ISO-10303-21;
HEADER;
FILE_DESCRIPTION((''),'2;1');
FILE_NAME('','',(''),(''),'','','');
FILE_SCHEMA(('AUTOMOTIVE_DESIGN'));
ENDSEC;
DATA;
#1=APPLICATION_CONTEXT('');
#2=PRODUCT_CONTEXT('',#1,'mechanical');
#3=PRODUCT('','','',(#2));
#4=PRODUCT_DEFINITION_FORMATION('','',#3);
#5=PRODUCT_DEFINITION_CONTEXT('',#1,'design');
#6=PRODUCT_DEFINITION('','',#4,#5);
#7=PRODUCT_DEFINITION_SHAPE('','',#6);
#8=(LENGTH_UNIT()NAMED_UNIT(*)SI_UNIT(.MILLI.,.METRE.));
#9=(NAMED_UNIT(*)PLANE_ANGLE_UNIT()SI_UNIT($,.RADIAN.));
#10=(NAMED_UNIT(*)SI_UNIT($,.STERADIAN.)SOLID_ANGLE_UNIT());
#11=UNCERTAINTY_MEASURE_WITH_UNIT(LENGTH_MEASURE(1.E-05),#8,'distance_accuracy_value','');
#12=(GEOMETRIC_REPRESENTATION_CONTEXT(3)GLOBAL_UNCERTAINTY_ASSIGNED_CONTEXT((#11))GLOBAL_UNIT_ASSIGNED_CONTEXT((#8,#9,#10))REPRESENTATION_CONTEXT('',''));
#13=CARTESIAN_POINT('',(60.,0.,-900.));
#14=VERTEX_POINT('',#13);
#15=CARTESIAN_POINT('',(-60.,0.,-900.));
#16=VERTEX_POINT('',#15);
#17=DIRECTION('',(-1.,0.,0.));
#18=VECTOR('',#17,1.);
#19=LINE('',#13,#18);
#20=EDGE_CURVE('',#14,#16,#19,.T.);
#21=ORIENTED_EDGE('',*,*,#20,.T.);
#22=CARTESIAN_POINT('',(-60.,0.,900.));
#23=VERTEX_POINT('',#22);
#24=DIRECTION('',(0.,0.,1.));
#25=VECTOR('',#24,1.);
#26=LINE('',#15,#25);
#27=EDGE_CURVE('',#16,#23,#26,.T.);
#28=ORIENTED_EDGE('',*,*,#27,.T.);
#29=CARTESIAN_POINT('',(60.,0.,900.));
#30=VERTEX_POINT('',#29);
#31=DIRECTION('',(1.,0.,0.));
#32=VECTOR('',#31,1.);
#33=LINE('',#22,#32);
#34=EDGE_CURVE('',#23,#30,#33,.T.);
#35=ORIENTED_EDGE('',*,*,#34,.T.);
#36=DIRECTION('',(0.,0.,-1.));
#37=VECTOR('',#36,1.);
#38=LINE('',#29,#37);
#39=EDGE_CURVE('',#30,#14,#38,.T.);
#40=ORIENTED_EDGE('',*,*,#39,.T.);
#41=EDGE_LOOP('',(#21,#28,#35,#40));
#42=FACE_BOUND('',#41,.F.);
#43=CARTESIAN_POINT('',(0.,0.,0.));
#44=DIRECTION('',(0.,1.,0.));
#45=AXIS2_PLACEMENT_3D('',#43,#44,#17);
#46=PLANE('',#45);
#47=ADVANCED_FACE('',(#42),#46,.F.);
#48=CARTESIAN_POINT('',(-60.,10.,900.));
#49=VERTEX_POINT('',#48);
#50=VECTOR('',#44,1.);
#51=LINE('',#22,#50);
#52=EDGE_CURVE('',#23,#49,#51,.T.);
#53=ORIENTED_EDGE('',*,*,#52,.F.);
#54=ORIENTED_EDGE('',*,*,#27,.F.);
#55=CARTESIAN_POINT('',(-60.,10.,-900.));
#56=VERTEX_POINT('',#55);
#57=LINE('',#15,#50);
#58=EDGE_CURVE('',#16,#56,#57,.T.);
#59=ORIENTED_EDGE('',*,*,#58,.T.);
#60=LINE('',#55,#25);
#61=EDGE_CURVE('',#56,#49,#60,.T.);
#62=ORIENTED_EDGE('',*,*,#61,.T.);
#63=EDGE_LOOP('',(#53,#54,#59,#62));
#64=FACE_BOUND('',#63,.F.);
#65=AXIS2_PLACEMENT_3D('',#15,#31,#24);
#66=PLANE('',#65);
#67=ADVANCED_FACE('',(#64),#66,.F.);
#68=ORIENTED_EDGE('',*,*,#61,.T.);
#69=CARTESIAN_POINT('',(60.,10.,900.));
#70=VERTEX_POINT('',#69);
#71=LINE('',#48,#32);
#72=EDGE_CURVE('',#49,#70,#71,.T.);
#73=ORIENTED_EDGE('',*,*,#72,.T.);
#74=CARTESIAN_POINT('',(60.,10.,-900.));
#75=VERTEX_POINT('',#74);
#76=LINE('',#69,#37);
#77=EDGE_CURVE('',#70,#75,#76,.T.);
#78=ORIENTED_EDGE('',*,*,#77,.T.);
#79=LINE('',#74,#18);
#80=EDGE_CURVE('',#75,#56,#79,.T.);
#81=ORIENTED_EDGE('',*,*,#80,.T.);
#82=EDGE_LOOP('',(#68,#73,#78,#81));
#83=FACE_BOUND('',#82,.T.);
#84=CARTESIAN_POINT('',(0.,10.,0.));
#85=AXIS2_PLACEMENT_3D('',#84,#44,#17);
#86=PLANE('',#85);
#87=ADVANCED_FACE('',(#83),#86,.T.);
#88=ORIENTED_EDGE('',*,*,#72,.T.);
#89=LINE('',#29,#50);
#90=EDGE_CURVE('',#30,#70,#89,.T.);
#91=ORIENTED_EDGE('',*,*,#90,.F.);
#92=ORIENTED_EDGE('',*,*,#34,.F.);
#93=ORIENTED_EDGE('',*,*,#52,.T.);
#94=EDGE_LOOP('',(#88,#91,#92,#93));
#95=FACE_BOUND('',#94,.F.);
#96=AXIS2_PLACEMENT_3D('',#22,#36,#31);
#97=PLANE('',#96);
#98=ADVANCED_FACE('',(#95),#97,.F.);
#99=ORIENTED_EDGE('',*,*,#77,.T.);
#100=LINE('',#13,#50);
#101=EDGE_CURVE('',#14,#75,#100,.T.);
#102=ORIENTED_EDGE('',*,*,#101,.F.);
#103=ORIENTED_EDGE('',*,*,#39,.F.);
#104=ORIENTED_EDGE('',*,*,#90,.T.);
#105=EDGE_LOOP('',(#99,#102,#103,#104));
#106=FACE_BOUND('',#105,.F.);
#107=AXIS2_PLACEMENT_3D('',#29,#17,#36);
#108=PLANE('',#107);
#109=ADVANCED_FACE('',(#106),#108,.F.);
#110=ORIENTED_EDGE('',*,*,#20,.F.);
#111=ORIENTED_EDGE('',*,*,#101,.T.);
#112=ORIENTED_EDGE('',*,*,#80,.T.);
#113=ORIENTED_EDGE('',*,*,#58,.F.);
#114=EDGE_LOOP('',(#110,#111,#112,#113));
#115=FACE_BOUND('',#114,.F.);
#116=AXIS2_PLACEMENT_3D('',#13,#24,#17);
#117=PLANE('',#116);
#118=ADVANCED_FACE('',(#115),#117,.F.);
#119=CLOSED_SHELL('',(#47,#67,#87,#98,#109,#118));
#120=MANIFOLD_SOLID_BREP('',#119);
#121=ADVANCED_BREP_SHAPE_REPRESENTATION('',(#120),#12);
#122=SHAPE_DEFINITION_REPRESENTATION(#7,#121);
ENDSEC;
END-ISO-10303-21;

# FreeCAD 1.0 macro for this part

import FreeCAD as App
import Part
import Sketcher
Q = App.Units.Quantity


def add_polygon(sketch, points):
    """Adds a closed chain of lines whose ends are joined by coincident constraints."""
    first, n = sketch.GeometryCount, len(points)
    for a, b in zip(points, points[1:] + points[:1]):
        sketch.addGeometry(Part.LineSegment(App.Vector(*a, 0), App.Vector(*b, 0)), False)
    for i in range(n):
        sketch.addConstraint(Sketcher.Constraint("Coincident", first + i, 2, first + (i + 1) % n, 1))

doc = App.newDocument("Part")
body = doc.addObject("PartDesign::Body", "Body")

sketch1 = body.newObject("Sketcher::SketchObject", "Sketch")
sketch1.AttachmentSupport = (doc.getObject("XZ_Plane"), [""])
sketch1.MapMode = "FlatFace"
add_polygon(sketch1, [(60, 900), (60, -900), (-60, -900), (-60, 900)])
sketch1.addConstraint([
    Sketcher.Constraint("Vertical", 0),
    Sketcher.Constraint("Horizontal", 1),
    Sketcher.Constraint("Vertical", 2),
    Sketcher.Constraint("Horizontal", 3),
    Sketcher.Constraint("Symmetric", 0, 2, 2, 2, -1, 1),
    Sketcher.Constraint("DistanceX", 1, 2, 1, 1, Q("120 mm")),
    Sketcher.Constraint("DistanceY", 0, 2, 0, 1, Q("1800 mm")),
])
pad1 = body.newObject("PartDesign::Pad", "Pad")
pad1.Profile = sketch1
pad1.Length = 10
pad1.Reversed = True

doc.recompute()
